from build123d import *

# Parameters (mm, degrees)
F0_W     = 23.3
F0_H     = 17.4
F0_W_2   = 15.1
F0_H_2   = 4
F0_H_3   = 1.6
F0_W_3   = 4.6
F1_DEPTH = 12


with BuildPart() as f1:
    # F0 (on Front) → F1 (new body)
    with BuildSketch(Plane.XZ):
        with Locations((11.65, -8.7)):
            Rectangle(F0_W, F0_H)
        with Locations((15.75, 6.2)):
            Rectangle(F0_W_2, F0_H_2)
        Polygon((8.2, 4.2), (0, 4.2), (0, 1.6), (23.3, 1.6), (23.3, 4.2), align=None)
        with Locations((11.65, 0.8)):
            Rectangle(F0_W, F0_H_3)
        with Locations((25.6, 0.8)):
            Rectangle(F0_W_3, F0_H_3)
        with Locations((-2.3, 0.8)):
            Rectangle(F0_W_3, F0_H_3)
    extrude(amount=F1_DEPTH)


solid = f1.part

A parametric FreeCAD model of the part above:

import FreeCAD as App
import Part
import Sketcher
from FreeCAD import Vector
Q = App.Units.Quantity

doc = App.newDocument("Part")
body = doc.addObject("PartDesign::Body", "Body")

# Sketch on XZ plane
sketch1 = doc.addObject("Sketcher::SketchObject", "Sketch")
body.addObject(sketch1)
sketch1.AttachmentSupport = (doc.XZ_Plane, [""])
sketch1.MapMode = "FlatFace"
sketch1.addGeometry([
    Part.LineSegment(Vector(0, -17.4, 0), Vector(23.3, -17.4, 0)),  # 0
    Part.LineSegment(Vector(23.3, -17.4, 0), Vector(23.3, 0, 0)),  # 1
    Part.LineSegment(Vector(23.3, 0, 0), Vector(27.9, 0, 0)),  # 2
    Part.LineSegment(Vector(27.9, 0, 0), Vector(27.9, 1.6, 0)),  # 3
    Part.LineSegment(Vector(27.9, 1.6, 0), Vector(23.3, 1.6, 0)),  # 4
    Part.LineSegment(Vector(23.3, 1.6, 0), Vector(23.3, 8.2, 0)),  # 5
    Part.LineSegment(Vector(23.3, 8.2, 0), Vector(8.2, 8.2, 0)),  # 6
    Part.LineSegment(Vector(8.2, 8.2, 0), Vector(8.2, 4.2, 0)),  # 7
    Part.LineSegment(Vector(8.2, 4.2, 0), Vector(0, 4.2, 0)),  # 8
    Part.LineSegment(Vector(0, 4.2, 0), Vector(0, 1.6, 0)),  # 9
    Part.LineSegment(Vector(0, 1.6, 0), Vector(-4.6, 1.6, 0)),  # 10
    Part.LineSegment(Vector(-4.6, 1.6, 0), Vector(-4.6, 0, 0)),  # 11
    Part.LineSegment(Vector(-4.6, 0, 0), Vector(0, 0, 0)),  # 12
    Part.LineSegment(Vector(0, 0, 0), Vector(0, -17.4, 0)),  # 13
], False)
sketch1.addConstraint([
    Sketcher.Constraint("Coincident", 0, 2, 1, 1),
    Sketcher.Constraint("Coincident", 1, 2, 2, 1),
    Sketcher.Constraint("Coincident", 2, 2, 3, 1),
    Sketcher.Constraint("Coincident", 3, 2, 4, 1),
    Sketcher.Constraint("Coincident", 4, 2, 5, 1),
    Sketcher.Constraint("Coincident", 5, 2, 6, 1),
    Sketcher.Constraint("Coincident", 6, 2, 7, 1),
    Sketcher.Constraint("Coincident", 7, 2, 8, 1),
    Sketcher.Constraint("Coincident", 8, 2, 9, 1),
    Sketcher.Constraint("Coincident", 9, 2, 10, 1),
    Sketcher.Constraint("Coincident", 10, 2, 11, 1),
    Sketcher.Constraint("Coincident", 11, 2, 12, 1),
    Sketcher.Constraint("Coincident", 12, 2, 13, 1),
    Sketcher.Constraint("Coincident", 13, 2, 0, 1),
    Sketcher.Constraint("Horizontal", 0),
    Sketcher.Constraint("Vertical", 1),
    Sketcher.Constraint("Horizontal", 2),
    Sketcher.Constraint("Vertical", 3),
    Sketcher.Constraint("Horizontal", 4),
    Sketcher.Constraint("Vertical", 5),
    Sketcher.Constraint("Horizontal", 6),
    Sketcher.Constraint("Vertical", 7),
    Sketcher.Constraint("Horizontal", 8),
    Sketcher.Constraint("Vertical", 9),
    Sketcher.Constraint("Horizontal", 10),
    Sketcher.Constraint("Vertical", 11),
    Sketcher.Constraint("Horizontal", 12),
    Sketcher.Constraint("Vertical", 13),
    Sketcher.Constraint("Coincident", 12, 2, -1, 1),
    Sketcher.Constraint("PointOnObject", 1, 2, -1),
    Sketcher.Constraint("PointOnObject", 8, 2, -2),
    Sketcher.Constraint("Horizontal", 4, 2, 9, 2),
    Sketcher.Constraint("Vertical", 1, 2, 4, 2),
    Sketcher.Constraint("Equal", 4, 10),
    Sketcher.Constraint("DistanceY", 7, 2, 7, 1, Q("4 mm")),
    Sketcher.Constraint("DistanceX", 0, 1, 0, 2, Q("23.3 mm")),
    Sketcher.Constraint("DistanceX", 2, 1, 2, 2, Q("4.6 mm")),
    Sketcher.Constraint("DistanceX", 6, 2, 6, 1, Q("15.1 mm")),
    Sketcher.Constraint("DistanceY", 1, 1, 1, 2, Q("17.4 mm")),
    Sketcher.Constraint("DistanceY", 3, 1, 3, 2, Q("1.6 mm")),
    Sketcher.Constraint("DistanceY", 5, 1, 5, 2, Q("6.6 mm")),
])
pad1 = doc.addObject("PartDesign::Pad", "Pad")
body.addObject(pad1)
pad1.Profile = sketch1
pad1.Length = 12

doc.recompute()
